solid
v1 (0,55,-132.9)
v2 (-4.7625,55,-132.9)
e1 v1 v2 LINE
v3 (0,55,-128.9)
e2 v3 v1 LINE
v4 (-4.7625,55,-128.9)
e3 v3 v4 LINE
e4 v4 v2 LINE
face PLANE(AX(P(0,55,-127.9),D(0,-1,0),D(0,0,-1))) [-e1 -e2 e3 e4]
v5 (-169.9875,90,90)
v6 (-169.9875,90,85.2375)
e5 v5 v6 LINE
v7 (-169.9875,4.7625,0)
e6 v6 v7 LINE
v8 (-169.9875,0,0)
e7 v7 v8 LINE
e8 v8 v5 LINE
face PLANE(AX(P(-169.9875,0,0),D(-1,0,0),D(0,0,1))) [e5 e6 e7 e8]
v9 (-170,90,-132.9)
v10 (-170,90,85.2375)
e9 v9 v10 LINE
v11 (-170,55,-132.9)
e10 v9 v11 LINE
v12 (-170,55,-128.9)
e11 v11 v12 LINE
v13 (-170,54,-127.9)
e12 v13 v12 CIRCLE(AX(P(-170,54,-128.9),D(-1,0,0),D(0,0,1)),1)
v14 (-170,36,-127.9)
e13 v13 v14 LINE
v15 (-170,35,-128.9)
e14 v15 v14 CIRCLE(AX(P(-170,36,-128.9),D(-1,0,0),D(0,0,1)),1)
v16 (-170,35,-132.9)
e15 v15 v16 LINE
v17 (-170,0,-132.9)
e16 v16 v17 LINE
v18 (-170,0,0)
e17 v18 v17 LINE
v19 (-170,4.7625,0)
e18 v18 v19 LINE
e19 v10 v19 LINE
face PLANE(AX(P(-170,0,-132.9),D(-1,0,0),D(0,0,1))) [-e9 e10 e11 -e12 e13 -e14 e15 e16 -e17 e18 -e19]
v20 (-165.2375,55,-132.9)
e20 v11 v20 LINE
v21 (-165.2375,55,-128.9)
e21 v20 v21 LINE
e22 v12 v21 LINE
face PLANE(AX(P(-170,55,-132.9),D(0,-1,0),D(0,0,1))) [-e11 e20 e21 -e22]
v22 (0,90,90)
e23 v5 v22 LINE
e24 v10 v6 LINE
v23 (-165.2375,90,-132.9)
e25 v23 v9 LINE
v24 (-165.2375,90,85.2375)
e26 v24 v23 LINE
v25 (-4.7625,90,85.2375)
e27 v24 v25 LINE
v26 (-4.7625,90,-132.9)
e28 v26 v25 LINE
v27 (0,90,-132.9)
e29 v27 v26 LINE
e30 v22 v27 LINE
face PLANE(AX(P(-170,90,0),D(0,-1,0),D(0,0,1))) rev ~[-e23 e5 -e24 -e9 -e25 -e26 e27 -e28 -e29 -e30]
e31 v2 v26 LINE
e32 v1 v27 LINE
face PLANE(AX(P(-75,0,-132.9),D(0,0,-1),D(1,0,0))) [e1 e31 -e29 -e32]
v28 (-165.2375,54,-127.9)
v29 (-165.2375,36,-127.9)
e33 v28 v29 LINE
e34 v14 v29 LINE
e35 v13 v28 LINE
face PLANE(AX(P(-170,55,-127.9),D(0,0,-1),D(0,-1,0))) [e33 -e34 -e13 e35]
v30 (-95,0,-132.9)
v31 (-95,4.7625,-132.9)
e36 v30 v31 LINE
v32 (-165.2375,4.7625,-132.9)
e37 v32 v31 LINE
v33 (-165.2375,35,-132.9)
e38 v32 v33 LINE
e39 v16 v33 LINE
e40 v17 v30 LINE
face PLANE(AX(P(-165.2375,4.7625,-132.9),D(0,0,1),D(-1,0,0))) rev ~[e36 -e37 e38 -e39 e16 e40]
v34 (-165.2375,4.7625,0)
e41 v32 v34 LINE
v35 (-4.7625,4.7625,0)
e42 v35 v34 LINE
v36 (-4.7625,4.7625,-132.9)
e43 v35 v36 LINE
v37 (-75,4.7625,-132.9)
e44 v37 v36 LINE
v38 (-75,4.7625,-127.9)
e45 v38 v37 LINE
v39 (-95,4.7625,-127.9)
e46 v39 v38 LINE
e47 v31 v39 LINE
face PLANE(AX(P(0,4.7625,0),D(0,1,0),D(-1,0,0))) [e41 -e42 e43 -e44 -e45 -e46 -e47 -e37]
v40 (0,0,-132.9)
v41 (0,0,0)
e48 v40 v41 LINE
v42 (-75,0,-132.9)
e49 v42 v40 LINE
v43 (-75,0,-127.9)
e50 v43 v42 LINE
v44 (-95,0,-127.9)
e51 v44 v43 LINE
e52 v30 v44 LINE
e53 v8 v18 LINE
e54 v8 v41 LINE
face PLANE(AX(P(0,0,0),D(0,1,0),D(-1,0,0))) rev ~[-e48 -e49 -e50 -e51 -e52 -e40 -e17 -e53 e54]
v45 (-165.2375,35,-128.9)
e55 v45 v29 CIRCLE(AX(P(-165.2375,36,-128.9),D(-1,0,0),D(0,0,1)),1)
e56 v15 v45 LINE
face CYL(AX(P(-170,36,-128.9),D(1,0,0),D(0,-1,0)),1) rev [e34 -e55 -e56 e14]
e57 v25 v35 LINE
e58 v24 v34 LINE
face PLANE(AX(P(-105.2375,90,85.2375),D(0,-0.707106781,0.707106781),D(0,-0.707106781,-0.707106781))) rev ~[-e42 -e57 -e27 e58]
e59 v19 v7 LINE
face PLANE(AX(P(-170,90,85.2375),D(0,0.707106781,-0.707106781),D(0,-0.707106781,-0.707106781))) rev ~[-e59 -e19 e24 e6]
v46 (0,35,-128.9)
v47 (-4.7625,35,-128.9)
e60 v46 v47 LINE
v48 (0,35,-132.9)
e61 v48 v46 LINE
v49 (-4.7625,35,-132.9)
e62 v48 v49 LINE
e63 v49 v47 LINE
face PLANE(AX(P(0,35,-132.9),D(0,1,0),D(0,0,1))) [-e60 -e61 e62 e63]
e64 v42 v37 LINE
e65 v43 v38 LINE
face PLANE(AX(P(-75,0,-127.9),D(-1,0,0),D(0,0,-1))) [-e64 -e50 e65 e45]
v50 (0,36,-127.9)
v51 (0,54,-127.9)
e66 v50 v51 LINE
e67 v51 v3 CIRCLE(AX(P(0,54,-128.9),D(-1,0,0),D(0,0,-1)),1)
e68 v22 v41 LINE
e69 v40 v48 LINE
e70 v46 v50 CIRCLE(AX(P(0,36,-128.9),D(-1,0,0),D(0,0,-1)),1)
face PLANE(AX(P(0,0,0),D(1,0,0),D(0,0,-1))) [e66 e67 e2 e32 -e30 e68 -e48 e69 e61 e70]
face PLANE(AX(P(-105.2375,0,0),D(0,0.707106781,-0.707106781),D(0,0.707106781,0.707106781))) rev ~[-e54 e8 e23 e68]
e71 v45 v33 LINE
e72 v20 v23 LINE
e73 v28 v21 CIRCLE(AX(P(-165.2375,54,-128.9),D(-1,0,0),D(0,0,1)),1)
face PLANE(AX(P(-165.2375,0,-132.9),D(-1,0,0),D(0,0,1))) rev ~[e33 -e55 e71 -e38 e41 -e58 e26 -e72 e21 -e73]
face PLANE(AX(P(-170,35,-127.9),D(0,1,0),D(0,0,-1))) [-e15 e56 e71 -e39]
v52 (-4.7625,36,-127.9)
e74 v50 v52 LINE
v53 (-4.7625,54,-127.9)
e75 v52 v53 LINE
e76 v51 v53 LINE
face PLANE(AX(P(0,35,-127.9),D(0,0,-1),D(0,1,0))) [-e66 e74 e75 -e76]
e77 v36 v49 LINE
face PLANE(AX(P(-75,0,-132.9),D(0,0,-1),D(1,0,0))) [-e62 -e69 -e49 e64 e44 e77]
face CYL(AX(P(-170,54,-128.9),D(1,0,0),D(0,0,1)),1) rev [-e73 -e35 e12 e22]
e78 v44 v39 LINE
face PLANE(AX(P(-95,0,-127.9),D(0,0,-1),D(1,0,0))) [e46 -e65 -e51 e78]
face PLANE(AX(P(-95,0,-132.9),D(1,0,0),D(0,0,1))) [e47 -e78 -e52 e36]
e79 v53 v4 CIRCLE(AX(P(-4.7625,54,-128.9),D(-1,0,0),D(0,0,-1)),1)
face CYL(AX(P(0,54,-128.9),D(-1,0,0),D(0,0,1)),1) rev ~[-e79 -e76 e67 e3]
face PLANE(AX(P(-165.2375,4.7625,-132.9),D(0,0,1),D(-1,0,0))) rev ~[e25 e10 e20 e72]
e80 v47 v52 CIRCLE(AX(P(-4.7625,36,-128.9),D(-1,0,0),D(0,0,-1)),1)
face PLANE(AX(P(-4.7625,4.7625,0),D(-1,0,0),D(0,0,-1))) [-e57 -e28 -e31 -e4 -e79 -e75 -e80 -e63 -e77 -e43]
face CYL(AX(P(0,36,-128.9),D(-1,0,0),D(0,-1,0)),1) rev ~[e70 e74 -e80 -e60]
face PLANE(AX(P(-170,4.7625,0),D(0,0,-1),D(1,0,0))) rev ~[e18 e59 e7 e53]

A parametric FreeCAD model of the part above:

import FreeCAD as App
import Part
import Sketcher

V = App.Vector
Q = App.Units.Quantity


def edges_at(feature, points):
    """Names of the edges that pass closest to the given points."""
    edges = feature.Shape.Edges
    near = lambda p: min(range(len(edges)), key=lambda i: edges[i].distToShape(Part.Vertex(*p))[0])
    return sorted({f"Edge{near(p) + 1}" for p in points})

doc = App.newDocument("Part")
body = doc.addObject("PartDesign::Body", "Body")

sketch1 = doc.addObject("Sketcher::SketchObject", "Sketch")
body.addObject(sketch1)
sketch1.AttachmentSupport = (doc.XZ_Plane, [""])
sketch1.MapMode = "FlatFace"
sketch1.addGeometry(Part.LineSegment(V(-170, 0, 0), V(0, 0, 0)), False)
sketch1.addGeometry(Part.LineSegment(V(0, 0, 0), V(0, -133, 0)), False)
sketch1.addGeometry(Part.LineSegment(V(0, -133, 0), V(-75, -133, 0)), False)
sketch1.addGeometry(Part.LineSegment(V(-75, -133, 0), V(-75, -128, 0)), False)
sketch1.addGeometry(Part.LineSegment(V(-75, -128, 0), V(-95, -128, 0)), False)
sketch1.addGeometry(Part.LineSegment(V(-95, -128, 0), V(-95, -133, 0)), False)
sketch1.addGeometry(Part.LineSegment(V(-95, -133, 0), V(-170, -133, 0)), False)
sketch1.addGeometry(Part.LineSegment(V(-170, -133, 0), V(-170, 0, 0)), False)
sketch1.addConstraint(Sketcher.Constraint("Coincident", 0, 2, 1, 1))
sketch1.addConstraint(Sketcher.Constraint("Coincident", 1, 2, 2, 1))
sketch1.addConstraint(Sketcher.Constraint("Coincident", 2, 2, 3, 1))
sketch1.addConstraint(Sketcher.Constraint("Coincident", 3, 2, 4, 1))
sketch1.addConstraint(Sketcher.Constraint("Coincident", 4, 2, 5, 1))
sketch1.addConstraint(Sketcher.Constraint("Coincident", 5, 2, 6, 1))
sketch1.addConstraint(Sketcher.Constraint("Coincident", 6, 2, 7, 1))
sketch1.addConstraint(Sketcher.Constraint("Coincident", 7, 2, 0, 1))
sketch1.addConstraint(Sketcher.Constraint("Horizontal", 0))
sketch1.addConstraint(Sketcher.Constraint("Vertical", 1))
sketch1.addConstraint(Sketcher.Constraint("Horizontal", 2))
sketch1.addConstraint(Sketcher.Constraint("Vertical", 3))
sketch1.addConstraint(Sketcher.Constraint("Horizontal", 4))
sketch1.addConstraint(Sketcher.Constraint("Vertical", 5))
sketch1.addConstraint(Sketcher.Constraint("Horizontal", 6))
sketch1.addConstraint(Sketcher.Constraint("Vertical", 7))
sketch1.addConstraint(Sketcher.Constraint("Coincident", 0, 2, -1, 1))
sketch1.addConstraint(Sketcher.Constraint("Horizontal", 2, 2, 5, 2))
sketch1.addConstraint(Sketcher.Constraint("Equal", 2, 6))
sketch1.addConstraint(Sketcher.Constraint("DistanceX", 0, 1, 0, 2, Q("170 mm")))
sketch1.addConstraint(Sketcher.Constraint("DistanceX", 2, 2, 2, 1, Q("75 mm")))
sketch1.addConstraint(Sketcher.Constraint("DistanceY", 3, 1, 3, 2, Q("5 mm")))
sketch1.addConstraint(Sketcher.Constraint("DistanceY", 1, 2, 1, 1, Q("132.9 mm")))
pad1 = doc.addObject("PartDesign::Pad", "Pad")
body.addObject(pad1)
pad1.Profile = sketch1
pad1.Length = 4.7625
pad1.Reversed = True

sketch2 = doc.addObject("Sketcher::SketchObject", "Sketch001")
body.addObject(sketch2)
sketch2.AttachmentSupport = (doc.XZ_Plane, [""])
sketch2.MapMode = "FlatFace"
sketch2.AttachmentOffset = App.Placement(V(0, 0, -4.7625), App.Rotation())
sketch2.addGeometry(Part.LineSegment(V(-4.8, -132.9, 0), V(-4.8, 0, 0)), False)
sketch2.addGeometry(Part.LineSegment(V(-4.8, 0, 0), V(0, 0, 0)), False)
sketch2.addGeometry(Part.LineSegment(V(0, 0, 0), V(0, -132.9, 0)), False)
sketch2.addGeometry(Part.LineSegment(V(0, -132.9, 0), V(-4.8, -132.9, 0)), False)
sketch2.addConstraint(Sketcher.Constraint("Coincident", 0, 2, 1, 1))
sketch2.addConstraint(Sketcher.Constraint("Coincident", 1, 2, 2, 1))
sketch2.addConstraint(Sketcher.Constraint("Coincident", 2, 2, 3, 1))
sketch2.addConstraint(Sketcher.Constraint("Coincident", 3, 2, 0, 1))
sketch2.addConstraint(Sketcher.Constraint("Vertical", 0))
sketch2.addConstraint(Sketcher.Constraint("Horizontal", 1))
sketch2.addConstraint(Sketcher.Constraint("Vertical", 2))
sketch2.addConstraint(Sketcher.Constraint("Horizontal", 3))
sketch2.addConstraint(Sketcher.Constraint("Coincident", 1, 2, -1, 1))
sketch2.addConstraint(Sketcher.Constraint("DistanceX", 1, 1, 1, 2, Q("4.7625 mm")))
sketch2.addConstraint(Sketcher.Constraint("DistanceY", 0, 1, 0, 2, Q("132.9 mm")))
pad2 = doc.addObject("PartDesign::Pad", "Pad001")
body.addObject(pad2)
pad2.Profile = sketch2
pad2.Length = 85.2375
pad2.Reversed = True

sketch3 = doc.addObject("Sketcher::SketchObject", "Sketch002")
body.addObject(sketch3)
sketch3.AttachmentSupport = (doc.YZ_Plane, [""])
sketch3.MapMode = "FlatFace"
sketch3.addGeometry(Part.LineSegment(V(90, 90, 0), V(0, 0, 0)), False)
sketch3.addGeometry(Part.LineSegment(V(0, 0, 0), V(90, 0, 0)), False)
sketch3.addGeometry(Part.LineSegment(V(90, 0, 0), V(90, 90, 0)), False)
sketch3.addConstraint(Sketcher.Constraint("Coincident", 0, 2, 1, 1))
sketch3.addConstraint(Sketcher.Constraint("Coincident", 1, 2, 2, 1))
sketch3.addConstraint(Sketcher.Constraint("Coincident", 2, 2, 0, 1))
sketch3.addConstraint(Sketcher.Constraint("Horizontal", 1))
sketch3.addConstraint(Sketcher.Constraint("Vertical", 2))
sketch3.addConstraint(Sketcher.Constraint("Coincident", 0, 2, -1, 1))
sketch3.addConstraint(Sketcher.Constraint("Equal", 1, 2))
sketch3.addConstraint(Sketcher.Constraint("DistanceX", 1, 1, 1, 2, Q("90 mm")))
pad3 = doc.addObject("PartDesign::Pad", "Pad002")
body.addObject(pad3)
pad3.Profile = sketch3
pad3.Length = 105.2375
pad3.Reversed = True

sketch4 = doc.addObject("Sketcher::SketchObject", "Sketch003")
body.addObject(sketch4)
sketch4.AttachmentSupport = (doc.YZ_Plane, [""])
sketch4.MapMode = "FlatFace"
sketch4.AttachmentOffset = App.Placement(V(0, 0, -105.2375), App.Rotation())
sketch4.addGeometry(Part.LineSegment(V(90, 0, 0), V(5, 0, 0)), False)
sketch4.addGeometry(Part.LineSegment(V(5, 0, 0), V(90, 85, 0)), False)
sketch4.addGeometry(Part.LineSegment(V(90, 85, 0), V(90, 0, 0)), False)
sketch4.addConstraint(Sketcher.Constraint("Coincident", 0, 2, 1, 1))
sketch4.addConstraint(Sketcher.Constraint("Coincident", 1, 2, 2, 1))
sketch4.addConstraint(Sketcher.Constraint("Coincident", 2, 2, 0, 1))
sketch4.addConstraint(Sketcher.Constraint("Horizontal", 0))
sketch4.addConstraint(Sketcher.Constraint("Vertical", 2))
sketch4.addConstraint(Sketcher.Constraint("PointOnObject", 0, 2, -1))
sketch4.addConstraint(Sketcher.Constraint("Equal", 0, 2))
sketch4.addConstraint(Sketcher.Constraint("DistanceX", -1, 1, 1, 2, Q("90 mm")))
sketch4.addConstraint(Sketcher.Constraint("Distance", 1, Q("120.544 mm")))
pocket1 = doc.addObject("PartDesign::Pocket", "Pocket")
body.addObject(pocket1)
pocket1.Profile = sketch4
pocket1.Length = 100.475
pocket1.Reversed = True

sketch5 = doc.addObject("Sketcher::SketchObject", "Sketch004")
body.addObject(sketch5)
sketch5.AttachmentSupport = (doc.YZ_Plane, [""])
sketch5.MapMode = "FlatFace"
sketch5.AttachmentOffset = App.Placement(V(0, 0, -105.2375), App.Rotation())
sketch5.addGeometry(Part.LineSegment(V(90, 85.2, 0), V(4.8, 0, 0)), False)
sketch5.addGeometry(Part.LineSegment(V(4.8, 0, 0), V(0, 0, 0)), False)
sketch5.addGeometry(Part.LineSegment(V(0, 0, 0), V(90, 90, 0)), False)
sketch5.addGeometry(Part.LineSegment(V(90, 90, 0), V(90, 85.2, 0)), False)
sketch5.addConstraint(Sketcher.Constraint("Coincident", 0, 2, 1, 1))
sketch5.addConstraint(Sketcher.Constraint("Coincident", 1, 2, 2, 1))
sketch5.addConstraint(Sketcher.Constraint("Coincident", 2, 2, 3, 1))
sketch5.addConstraint(Sketcher.Constraint("Coincident", 3, 2, 0, 1))
sketch5.addConstraint(Sketcher.Constraint("Horizontal", 1))
sketch5.addConstraint(Sketcher.Constraint("Vertical", 3))
sketch5.addConstraint(Sketcher.Constraint("Coincident", 1, 2, -1, 1))
sketch5.addConstraint(Sketcher.Constraint("Parallel", 0, 2))
sketch5.addConstraint(Sketcher.Constraint("Equal", 1, 3))
sketch5.addConstraint(Sketcher.Constraint("DistanceX", -1, 1, 2, 2, Q("90 mm")))
sketch5.addConstraint(Sketcher.Constraint("Distance", 0, Q("120.544 mm")))
pad4 = doc.addObject("PartDesign::Pad", "Pad003")
body.addObject(pad4)
pad4.Profile = sketch5
pad4.Length = 64.75
pad4.Reversed = True

sketch6 = doc.addObject("Sketcher::SketchObject", "Sketch005")
body.addObject(sketch6)
sketch6.AttachmentSupport = (doc.XZ_Plane, [""])
sketch6.MapMode = "FlatFace"
sketch6.AttachmentOffset = App.Placement(V(0, 0, -4.7625), App.Rotation())
sketch6.addGeometry(Part.LineSegment(V(-170, -132.9, 0), V(-170, 0, 0)), False)
sketch6.addGeometry(Part.LineSegment(V(-170, 0, 0), V(-165.2, 0, 0)), False)
sketch6.addGeometry(Part.LineSegment(V(-165.2, 0, 0), V(-165.2, -132.9, 0)), False)
sketch6.addGeometry(Part.LineSegment(V(-165.2, -132.9, 0), V(-170, -132.9, 0)), False)
sketch6.addConstraint(Sketcher.Constraint("Coincident", 0, 2, 1, 1))
sketch6.addConstraint(Sketcher.Constraint("Coincident", 1, 2, 2, 1))
sketch6.addConstraint(Sketcher.Constraint("Coincident", 2, 2, 3, 1))
sketch6.addConstraint(Sketcher.Constraint("Coincident", 3, 2, 0, 1))
sketch6.addConstraint(Sketcher.Constraint("Vertical", 0))
sketch6.addConstraint(Sketcher.Constraint("Horizontal", 1))
sketch6.addConstraint(Sketcher.Constraint("Vertical", 2))
sketch6.addConstraint(Sketcher.Constraint("Horizontal", 3))
sketch6.addConstraint(Sketcher.Constraint("PointOnObject", 0, 2, -1))
sketch6.addConstraint(Sketcher.Constraint("DistanceX", 1, 1, 1, 2, Q("4.7625 mm")))
sketch6.addConstraint(Sketcher.Constraint("DistanceY", 0, 1, 0, 2, Q("132.9 mm")))
sketch6.addConstraint(Sketcher.Constraint("DistanceX", 0, 2, -1, 1, Q("170 mm")))
pad5 = doc.addObject("PartDesign::Pad", "Pad004")
body.addObject(pad5)
pad5.Profile = sketch6
pad5.Length = 85.2375
pad5.Reversed = True

sketch7 = doc.addObject("Sketcher::SketchObject", "Sketch006")
body.addObject(sketch7)
sketch7.AttachmentSupport = (doc.YZ_Plane, [""])
sketch7.MapMode = "FlatFace"
sketch7.AttachmentOffset = App.Placement(V(0, 0, -170), App.Rotation())
sketch7.addGeometry(Part.LineSegment(V(90, 85, 0), V(90, 0, 0)), False)
sketch7.addGeometry(Part.LineSegment(V(90, 0, 0), V(5, 0, 0)), False)
sketch7.addGeometry(Part.LineSegment(V(5, 0, 0), V(90, 85, 0)), False)
sketch7.addConstraint(Sketcher.Constraint("Coincident", 0, 2, 1, 1))
sketch7.addConstraint(Sketcher.Constraint("Coincident", 1, 2, 2, 1))
sketch7.addConstraint(Sketcher.Constraint("Coincident", 2, 2, 0, 1))
sketch7.addConstraint(Sketcher.Constraint("Vertical", 0))
sketch7.addConstraint(Sketcher.Constraint("Horizontal", 1))
sketch7.addConstraint(Sketcher.Constraint("PointOnObject", 0, 2, -1))
sketch7.addConstraint(Sketcher.Constraint("Equal", 1, 0))
sketch7.addConstraint(Sketcher.Constraint("DistanceX", -1, 1, 0, 2, Q("90 mm")))
sketch7.addConstraint(Sketcher.Constraint("Distance", 2, Q("120.544 mm")))
pad6 = doc.addObject("PartDesign::Pad", "Pad005")
body.addObject(pad6)
pad6.Profile = sketch7
pad6.Length = 4.7625

sketch8 = doc.addObject("Sketcher::SketchObject", "Sketch007")
body.addObject(sketch8)
sketch8.AttachmentSupport = (doc.YZ_Plane, [""])
sketch8.MapMode = "FlatFace"
sketch8.addGeometry(Part.LineSegment(V(35, -128, 0), V(35, -133, 0)), False)
sketch8.addGeometry(Part.LineSegment(V(35, -133, 0), V(55, -133, 0)), False)
sketch8.addGeometry(Part.LineSegment(V(55, -133, 0), V(55, -128, 0)), False)
sketch8.addGeometry(Part.LineSegment(V(55, -128, 0), V(35, -128, 0)), False)
sketch8.addConstraint(Sketcher.Constraint("Coincident", 0, 2, 1, 1))
sketch8.addConstraint(Sketcher.Constraint("Coincident", 1, 2, 2, 1))
sketch8.addConstraint(Sketcher.Constraint("Coincident", 2, 2, 3, 1))
sketch8.addConstraint(Sketcher.Constraint("Coincident", 3, 2, 0, 1))
sketch8.addConstraint(Sketcher.Constraint("Vertical", 0))
sketch8.addConstraint(Sketcher.Constraint("Horizontal", 1))
sketch8.addConstraint(Sketcher.Constraint("Vertical", 2))
sketch8.addConstraint(Sketcher.Constraint("Horizontal", 3))
sketch8.addConstraint(Sketcher.Constraint("DistanceX", 1, 1, 1, 2, Q("20 mm")))
sketch8.addConstraint(Sketcher.Constraint("DistanceY", 0, 2, 0, 1, Q("5 mm")))
sketch8.addConstraint(Sketcher.Constraint("DistanceX", -1, 1, 0, 2, Q("35 mm")))
sketch8.addConstraint(Sketcher.Constraint("DistanceY", 0, 2, -1, 1, Q("132.9 mm")))
pocket2 = doc.addObject("PartDesign::Pocket", "Pocket001")
body.addObject(pocket2)
pocket2.Profile = sketch8
pocket2.Length = 4.7625

sketch9 = doc.addObject("Sketcher::SketchObject", "Sketch008")
body.addObject(sketch9)
sketch9.AttachmentSupport = (doc.YZ_Plane, [""])
sketch9.MapMode = "FlatFace"
sketch9.AttachmentOffset = App.Placement(V(0, 0, -170), App.Rotation())
sketch9.addGeometry(Part.LineSegment(V(55, -133, 0), V(35, -133, 0)), False)
sketch9.addGeometry(Part.LineSegment(V(35, -133, 0), V(35, -128, 0)), False)
sketch9.addGeometry(Part.LineSegment(V(35, -128, 0), V(55, -128, 0)), False)
sketch9.addGeometry(Part.LineSegment(V(55, -128, 0), V(55, -133, 0)), False)
sketch9.addConstraint(Sketcher.Constraint("Coincident", 0, 2, 1, 1))
sketch9.addConstraint(Sketcher.Constraint("Coincident", 1, 2, 2, 1))
sketch9.addConstraint(Sketcher.Constraint("Coincident", 2, 2, 3, 1))
sketch9.addConstraint(Sketcher.Constraint("Coincident", 3, 2, 0, 1))
sketch9.addConstraint(Sketcher.Constraint("Horizontal", 0))
sketch9.addConstraint(Sketcher.Constraint("Vertical", 1))
sketch9.addConstraint(Sketcher.Constraint("Horizontal", 2))
sketch9.addConstraint(Sketcher.Constraint("Vertical", 3))
sketch9.addConstraint(Sketcher.Constraint("DistanceX", 0, 2, 0, 1, Q("20 mm")))
sketch9.addConstraint(Sketcher.Constraint("DistanceY", 1, 1, 1, 2, Q("5 mm")))
sketch9.addConstraint(Sketcher.Constraint("DistanceX", -1, 1, 0, 2, Q("35 mm")))
sketch9.addConstraint(Sketcher.Constraint("DistanceY", 0, 2, -1, 1, Q("132.9 mm")))
pocket3 = doc.addObject("PartDesign::Pocket", "Pocket002")
body.addObject(pocket3)
pocket3.Profile = sketch9
pocket3.Length = 4.7625
pocket3.Reversed = True
doc.recompute()

fillet = doc.addObject("PartDesign::Fillet", "Fillet")
body.addObject(fillet)
fillet.Base = (pocket3, edges_at(pocket3, [
    (-167.619, 55, -127.9),
    (-167.619, 35, -127.9),
    (-2.381, 35, -127.9),
    (-2.381, 55, -127.9),
]))
fillet.Radius = 1

doc.recompute()
